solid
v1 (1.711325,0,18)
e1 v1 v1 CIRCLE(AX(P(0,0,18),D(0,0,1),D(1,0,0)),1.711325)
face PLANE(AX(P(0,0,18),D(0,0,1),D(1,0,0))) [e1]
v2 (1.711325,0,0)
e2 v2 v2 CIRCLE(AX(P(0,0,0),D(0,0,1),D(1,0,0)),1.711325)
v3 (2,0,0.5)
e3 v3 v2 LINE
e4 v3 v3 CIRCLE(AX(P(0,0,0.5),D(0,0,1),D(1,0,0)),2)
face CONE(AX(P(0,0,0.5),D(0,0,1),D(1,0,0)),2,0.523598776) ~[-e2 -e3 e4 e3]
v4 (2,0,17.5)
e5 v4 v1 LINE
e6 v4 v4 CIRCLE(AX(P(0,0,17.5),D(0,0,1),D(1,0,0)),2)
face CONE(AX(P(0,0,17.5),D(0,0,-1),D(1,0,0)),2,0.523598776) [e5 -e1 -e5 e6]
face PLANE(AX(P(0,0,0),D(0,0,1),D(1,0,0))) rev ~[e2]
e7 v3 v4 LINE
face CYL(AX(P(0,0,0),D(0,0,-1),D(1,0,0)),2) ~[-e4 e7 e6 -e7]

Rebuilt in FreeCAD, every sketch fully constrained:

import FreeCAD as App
import Part
import Sketcher
Q = App.Units.Quantity


def edges_at(feature, points):
    """Names of the edges that pass closest to the given points."""
    edges = feature.Shape.Edges
    near = lambda p: min(range(len(edges)), key=lambda i: edges[i].distToShape(Part.Vertex(*p))[0])
    return sorted({f"Edge{near(p) + 1}" for p in points})

doc = App.newDocument("Part")
params = doc.addObject("Spreadsheet::Sheet", "Params")
for row, (alias, value) in enumerate([
    ("sketch1_diameter", "4 mm"),
    ("pad1_length", "18 mm"),
    ("chamfer_size", "0.5 mm"),
], start=1):
    params.set(f"A{row}", alias)
    params.set(f"B{row}", "=" + value)
    params.setAlias(f"B{row}", alias)

body = doc.addObject("PartDesign::Body", "Body")

sketch1 = body.newObject("Sketcher::SketchObject", "Sketch")
sketch1.AttachmentSupport = (doc.getObject("XY_Plane"), [""])
sketch1.MapMode = "FlatFace"
sketch1.addGeometry(Part.Circle(App.Vector(0, 0, 0), App.Vector(0, 0, 1), 2), False)
sketch1.addConstraint([
    Sketcher.Constraint("Coincident", 0, 3, -1, 1),
    Sketcher.Constraint("Diameter", 0, Q("4 mm")),
])
sketch1.setExpression("Constraints[1]", "Params.sketch1_diameter")
pad1 = body.newObject("PartDesign::Pad", "Pad")
pad1.Profile = sketch1
pad1.setExpression("Length", "Params.pad1_length")
doc.recompute()

chamfer = body.newObject("PartDesign::Chamfer", "Chamfer")
chamfer.Base = (pad1, edges_at(pad1, [(-2, 0, 18), (-2, 0, 0)]))
chamfer.ChamferType = "Distance and Angle"
chamfer.setExpression("Size", "Params.chamfer_size")
chamfer.Angle = 30

doc.recompute()
